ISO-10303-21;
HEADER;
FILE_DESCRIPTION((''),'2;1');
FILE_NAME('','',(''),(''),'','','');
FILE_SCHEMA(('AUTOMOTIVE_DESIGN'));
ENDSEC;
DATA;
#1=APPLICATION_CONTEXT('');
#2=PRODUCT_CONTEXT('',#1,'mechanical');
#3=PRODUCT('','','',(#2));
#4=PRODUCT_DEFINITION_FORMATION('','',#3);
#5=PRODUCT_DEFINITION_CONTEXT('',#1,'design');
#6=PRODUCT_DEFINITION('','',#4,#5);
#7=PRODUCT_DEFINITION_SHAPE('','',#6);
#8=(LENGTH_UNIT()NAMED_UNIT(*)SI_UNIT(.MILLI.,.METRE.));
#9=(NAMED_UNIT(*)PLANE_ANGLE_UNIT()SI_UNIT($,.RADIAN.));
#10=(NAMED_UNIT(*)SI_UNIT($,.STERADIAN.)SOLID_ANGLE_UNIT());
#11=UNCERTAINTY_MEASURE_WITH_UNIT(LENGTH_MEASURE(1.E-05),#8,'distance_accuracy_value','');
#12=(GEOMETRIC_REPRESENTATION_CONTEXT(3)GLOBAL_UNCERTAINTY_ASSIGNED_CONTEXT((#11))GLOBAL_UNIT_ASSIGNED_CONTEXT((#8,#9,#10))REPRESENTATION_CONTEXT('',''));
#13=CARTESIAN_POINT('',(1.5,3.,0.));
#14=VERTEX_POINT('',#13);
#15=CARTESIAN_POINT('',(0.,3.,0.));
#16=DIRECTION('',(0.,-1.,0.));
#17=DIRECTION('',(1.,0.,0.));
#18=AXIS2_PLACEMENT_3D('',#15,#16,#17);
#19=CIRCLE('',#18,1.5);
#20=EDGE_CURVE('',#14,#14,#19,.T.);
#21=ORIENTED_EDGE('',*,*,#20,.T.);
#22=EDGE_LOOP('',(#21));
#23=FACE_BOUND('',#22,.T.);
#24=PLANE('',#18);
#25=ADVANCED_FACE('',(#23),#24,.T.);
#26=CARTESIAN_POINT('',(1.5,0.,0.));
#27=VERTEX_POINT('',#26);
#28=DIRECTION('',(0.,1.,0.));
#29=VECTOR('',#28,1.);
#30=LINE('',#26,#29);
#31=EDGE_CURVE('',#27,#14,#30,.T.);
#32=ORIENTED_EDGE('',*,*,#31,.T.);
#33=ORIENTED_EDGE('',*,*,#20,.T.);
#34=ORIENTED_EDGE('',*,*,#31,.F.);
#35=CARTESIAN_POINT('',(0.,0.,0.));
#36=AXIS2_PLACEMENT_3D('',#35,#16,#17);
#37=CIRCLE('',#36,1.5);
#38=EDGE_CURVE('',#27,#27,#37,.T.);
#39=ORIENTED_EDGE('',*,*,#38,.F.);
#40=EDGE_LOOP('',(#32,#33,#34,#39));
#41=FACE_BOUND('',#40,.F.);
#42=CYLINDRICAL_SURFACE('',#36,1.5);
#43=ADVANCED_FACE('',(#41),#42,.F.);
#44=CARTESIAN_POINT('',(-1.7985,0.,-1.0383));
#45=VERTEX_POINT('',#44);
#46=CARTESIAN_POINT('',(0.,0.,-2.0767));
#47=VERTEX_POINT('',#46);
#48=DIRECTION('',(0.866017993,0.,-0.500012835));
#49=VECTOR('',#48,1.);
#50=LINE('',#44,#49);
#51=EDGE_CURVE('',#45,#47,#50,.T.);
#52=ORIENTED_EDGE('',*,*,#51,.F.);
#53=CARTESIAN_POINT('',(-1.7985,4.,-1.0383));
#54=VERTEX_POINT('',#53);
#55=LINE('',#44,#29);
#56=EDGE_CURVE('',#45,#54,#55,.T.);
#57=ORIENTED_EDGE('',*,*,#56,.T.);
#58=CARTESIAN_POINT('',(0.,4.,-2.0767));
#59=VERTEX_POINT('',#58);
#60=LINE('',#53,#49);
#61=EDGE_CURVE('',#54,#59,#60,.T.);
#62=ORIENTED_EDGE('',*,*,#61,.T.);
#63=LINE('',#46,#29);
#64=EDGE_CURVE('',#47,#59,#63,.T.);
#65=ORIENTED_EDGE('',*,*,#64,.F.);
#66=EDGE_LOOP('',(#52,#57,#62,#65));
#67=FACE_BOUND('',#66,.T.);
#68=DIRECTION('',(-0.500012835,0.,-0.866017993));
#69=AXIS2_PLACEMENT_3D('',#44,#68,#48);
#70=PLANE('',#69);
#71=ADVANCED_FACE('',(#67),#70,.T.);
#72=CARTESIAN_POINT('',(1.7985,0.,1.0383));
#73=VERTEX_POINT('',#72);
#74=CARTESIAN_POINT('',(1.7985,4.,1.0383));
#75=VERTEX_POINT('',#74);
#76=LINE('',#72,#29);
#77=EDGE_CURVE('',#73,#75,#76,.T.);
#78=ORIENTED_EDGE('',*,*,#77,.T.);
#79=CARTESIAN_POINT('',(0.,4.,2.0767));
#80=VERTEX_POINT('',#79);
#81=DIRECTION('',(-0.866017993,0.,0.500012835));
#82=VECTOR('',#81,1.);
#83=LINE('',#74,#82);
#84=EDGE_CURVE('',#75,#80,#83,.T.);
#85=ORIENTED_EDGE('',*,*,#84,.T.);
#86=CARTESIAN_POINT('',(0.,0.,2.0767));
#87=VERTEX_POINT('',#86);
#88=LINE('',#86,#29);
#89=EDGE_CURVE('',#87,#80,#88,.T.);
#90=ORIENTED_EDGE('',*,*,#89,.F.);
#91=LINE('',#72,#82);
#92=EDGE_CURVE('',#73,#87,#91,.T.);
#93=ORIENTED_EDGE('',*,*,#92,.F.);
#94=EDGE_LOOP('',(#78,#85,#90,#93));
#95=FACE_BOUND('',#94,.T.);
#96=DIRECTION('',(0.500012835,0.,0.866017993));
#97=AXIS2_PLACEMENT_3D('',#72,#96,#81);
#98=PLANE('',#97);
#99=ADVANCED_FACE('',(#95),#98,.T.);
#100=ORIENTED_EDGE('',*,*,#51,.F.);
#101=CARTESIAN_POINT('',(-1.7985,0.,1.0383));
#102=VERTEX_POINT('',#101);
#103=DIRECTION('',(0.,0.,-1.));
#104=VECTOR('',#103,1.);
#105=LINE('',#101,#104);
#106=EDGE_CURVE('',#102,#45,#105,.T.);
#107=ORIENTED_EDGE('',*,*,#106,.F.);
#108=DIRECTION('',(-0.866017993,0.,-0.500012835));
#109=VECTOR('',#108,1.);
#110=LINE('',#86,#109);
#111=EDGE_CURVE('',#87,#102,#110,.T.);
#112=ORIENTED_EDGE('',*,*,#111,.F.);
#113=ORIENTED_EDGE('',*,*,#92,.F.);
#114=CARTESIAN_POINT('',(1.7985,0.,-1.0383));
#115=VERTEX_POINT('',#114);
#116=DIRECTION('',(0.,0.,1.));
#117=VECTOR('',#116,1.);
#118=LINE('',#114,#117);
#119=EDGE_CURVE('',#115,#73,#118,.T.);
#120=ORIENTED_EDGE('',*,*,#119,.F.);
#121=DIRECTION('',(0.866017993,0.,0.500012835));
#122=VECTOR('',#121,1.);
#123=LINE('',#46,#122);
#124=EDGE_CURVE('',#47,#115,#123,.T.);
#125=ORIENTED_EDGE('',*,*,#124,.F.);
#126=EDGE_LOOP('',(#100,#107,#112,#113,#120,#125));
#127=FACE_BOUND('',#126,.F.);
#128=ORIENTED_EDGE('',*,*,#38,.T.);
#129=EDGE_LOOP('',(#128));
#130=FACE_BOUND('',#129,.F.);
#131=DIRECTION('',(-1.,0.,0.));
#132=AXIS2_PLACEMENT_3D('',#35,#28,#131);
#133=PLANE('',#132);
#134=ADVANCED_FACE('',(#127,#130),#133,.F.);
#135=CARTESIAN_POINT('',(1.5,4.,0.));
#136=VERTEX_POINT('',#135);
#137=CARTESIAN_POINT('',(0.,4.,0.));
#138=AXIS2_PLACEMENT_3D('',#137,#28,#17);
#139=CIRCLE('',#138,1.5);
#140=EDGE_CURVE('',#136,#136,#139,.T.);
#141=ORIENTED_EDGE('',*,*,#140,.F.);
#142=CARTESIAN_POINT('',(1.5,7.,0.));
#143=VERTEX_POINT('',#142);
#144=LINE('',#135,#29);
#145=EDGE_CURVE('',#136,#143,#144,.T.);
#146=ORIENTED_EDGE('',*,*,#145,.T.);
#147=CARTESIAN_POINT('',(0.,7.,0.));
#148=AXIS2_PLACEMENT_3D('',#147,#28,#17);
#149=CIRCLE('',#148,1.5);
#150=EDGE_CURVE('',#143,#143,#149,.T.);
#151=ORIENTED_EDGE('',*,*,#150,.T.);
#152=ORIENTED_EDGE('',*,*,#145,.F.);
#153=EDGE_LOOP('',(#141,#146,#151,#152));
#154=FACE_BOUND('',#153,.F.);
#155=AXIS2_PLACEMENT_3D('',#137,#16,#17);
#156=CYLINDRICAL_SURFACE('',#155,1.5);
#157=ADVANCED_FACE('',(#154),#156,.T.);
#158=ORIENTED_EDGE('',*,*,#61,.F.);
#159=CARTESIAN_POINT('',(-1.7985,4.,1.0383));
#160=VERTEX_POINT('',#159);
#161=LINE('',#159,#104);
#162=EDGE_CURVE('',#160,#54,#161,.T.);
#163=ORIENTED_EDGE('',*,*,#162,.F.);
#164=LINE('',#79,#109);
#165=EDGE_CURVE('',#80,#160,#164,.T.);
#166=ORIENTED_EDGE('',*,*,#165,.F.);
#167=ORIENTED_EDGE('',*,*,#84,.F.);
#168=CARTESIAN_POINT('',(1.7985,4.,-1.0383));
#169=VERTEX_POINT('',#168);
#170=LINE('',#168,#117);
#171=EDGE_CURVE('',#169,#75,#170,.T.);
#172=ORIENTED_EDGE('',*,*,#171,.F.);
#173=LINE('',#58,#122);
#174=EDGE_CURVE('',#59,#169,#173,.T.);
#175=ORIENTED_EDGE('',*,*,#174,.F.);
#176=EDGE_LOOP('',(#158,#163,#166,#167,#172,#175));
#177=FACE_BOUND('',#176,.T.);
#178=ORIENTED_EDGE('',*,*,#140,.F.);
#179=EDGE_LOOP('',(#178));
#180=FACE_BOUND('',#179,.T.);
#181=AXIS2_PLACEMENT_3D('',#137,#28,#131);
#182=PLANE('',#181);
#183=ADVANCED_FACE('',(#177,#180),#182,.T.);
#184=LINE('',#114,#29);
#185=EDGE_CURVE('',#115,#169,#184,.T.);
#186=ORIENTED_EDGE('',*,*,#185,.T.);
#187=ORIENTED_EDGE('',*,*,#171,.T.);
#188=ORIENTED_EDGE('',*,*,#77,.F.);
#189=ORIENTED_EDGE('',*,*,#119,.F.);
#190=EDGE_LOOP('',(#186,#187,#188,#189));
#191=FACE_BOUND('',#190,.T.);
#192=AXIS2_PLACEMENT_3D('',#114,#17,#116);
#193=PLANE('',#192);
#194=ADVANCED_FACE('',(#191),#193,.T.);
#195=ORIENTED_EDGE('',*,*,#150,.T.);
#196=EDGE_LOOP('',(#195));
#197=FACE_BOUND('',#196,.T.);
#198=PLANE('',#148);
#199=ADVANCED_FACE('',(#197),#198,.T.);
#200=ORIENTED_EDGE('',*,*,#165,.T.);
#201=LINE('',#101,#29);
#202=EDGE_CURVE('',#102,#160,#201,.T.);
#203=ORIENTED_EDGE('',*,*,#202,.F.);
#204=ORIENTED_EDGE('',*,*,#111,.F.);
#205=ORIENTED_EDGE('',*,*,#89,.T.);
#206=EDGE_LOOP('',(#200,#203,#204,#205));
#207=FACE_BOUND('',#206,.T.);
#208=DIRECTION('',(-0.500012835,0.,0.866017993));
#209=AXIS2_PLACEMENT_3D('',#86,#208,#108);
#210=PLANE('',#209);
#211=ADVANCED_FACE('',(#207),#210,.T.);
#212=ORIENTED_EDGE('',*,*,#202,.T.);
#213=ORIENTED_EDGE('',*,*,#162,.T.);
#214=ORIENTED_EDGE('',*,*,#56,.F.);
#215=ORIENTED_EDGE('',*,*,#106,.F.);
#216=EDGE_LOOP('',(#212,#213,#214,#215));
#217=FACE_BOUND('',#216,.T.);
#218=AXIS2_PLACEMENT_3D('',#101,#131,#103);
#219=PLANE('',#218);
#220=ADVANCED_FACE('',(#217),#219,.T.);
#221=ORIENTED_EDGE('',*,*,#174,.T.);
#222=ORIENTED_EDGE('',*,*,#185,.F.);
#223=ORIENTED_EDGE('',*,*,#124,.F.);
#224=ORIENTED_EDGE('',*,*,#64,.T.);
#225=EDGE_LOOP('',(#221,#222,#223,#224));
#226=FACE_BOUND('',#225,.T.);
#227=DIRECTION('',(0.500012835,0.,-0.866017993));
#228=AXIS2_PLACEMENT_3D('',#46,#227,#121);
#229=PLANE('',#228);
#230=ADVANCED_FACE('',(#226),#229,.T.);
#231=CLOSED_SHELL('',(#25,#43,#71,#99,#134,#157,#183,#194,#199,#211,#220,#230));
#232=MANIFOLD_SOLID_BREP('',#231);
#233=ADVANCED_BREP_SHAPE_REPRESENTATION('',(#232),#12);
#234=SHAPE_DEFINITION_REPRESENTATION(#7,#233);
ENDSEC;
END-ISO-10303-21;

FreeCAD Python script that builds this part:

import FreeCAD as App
import Part
import Sketcher
from FreeCAD import Vector
Q = App.Units.Quantity


def add_polygon(sketch, points):
    """Adds a closed chain of lines whose ends are joined by coincident constraints."""
    first, n = sketch.GeometryCount, len(points)
    for a, b in zip(points, points[1:] + points[:1]):
        sketch.addGeometry(Part.LineSegment(App.Vector(*a, 0), App.Vector(*b, 0)), False)
    for i in range(n):
        sketch.addConstraint(Sketcher.Constraint("Coincident", first + i, 2, first + (i + 1) % n, 1))

doc = App.newDocument("Part")
params = doc.addObject("Spreadsheet::Sheet", "Params")
for row, (alias, value) in enumerate([
    ("pad1_length", "4 mm"),
    ("sketch2_diameter", "3 mm"),
    ("pad2_length", "3 mm"),
    ("sketch3_diameter", "3 mm"),
    ("pocket1_length", "3 mm"),
], start=1):
    params.set(f"A{row}", alias)
    params.set(f"B{row}", "=" + value)
    params.setAlias(f"B{row}", alias)

body = doc.addObject("PartDesign::Body", "Body")

# Sketch on XZ plane
sketch1 = doc.addObject("Sketcher::SketchObject", "Sketch")
body.addObject(sketch1)
sketch1.AttachmentSupport = (doc.XZ_Plane, [""])
sketch1.MapMode = "FlatFace"
add_polygon(sketch1, [(0, -2.1), (-1.8, -1), (-1.8, 1), (0, 2.1), (1.8, 1), (1.8, -1)])  # lines 0-5
sketch1.addConstraint([
    Sketcher.Constraint("Vertical", 1),
    Sketcher.Constraint("Vertical", 4),
    Sketcher.Constraint("Symmetric", 0, 2, 3, 2, -1, 1),
    Sketcher.Constraint("Symmetric", 2, 2, 5, 2, -1, 1),
    Sketcher.Constraint("PointOnObject", 2, 2, -2),
    Sketcher.Constraint("Parallel", 2, 5),
    Sketcher.Constraint("Horizontal", 1, 2, 3, 2),
    Sketcher.Constraint("Angle", 0, Q("149.9992 deg")),
    Sketcher.Constraint("DistanceY", 1, 1, 1, 2, 2.0766),
    Sketcher.Constraint("DistanceY", 0, 2, 2, 2, 3.115),
])
pad1 = doc.addObject("PartDesign::Pad", "Pad")
body.addObject(pad1)
pad1.Profile = sketch1
pad1.setExpression("Length", "Params.pad1_length")
pad1.Reversed = True

# Sketch on XZ plane
sketch2 = doc.addObject("Sketcher::SketchObject", "Sketch001")
body.addObject(sketch2)
sketch2.AttachmentSupport = (doc.XZ_Plane, [""])
sketch2.MapMode = "FlatFace"
sketch2.AttachmentOffset = App.Placement(Vector(0, 0, -4), App.Rotation())
sketch2.addGeometry(Part.Circle(Vector(0, 0, 0), Vector(0, 0, 1), 1.5), False)
sketch2.addConstraint([
    Sketcher.Constraint("Coincident", 0, 3, -1, 1),
    Sketcher.Constraint("Diameter", 0, 3.0),
])
sketch2.setExpression("Constraints[1]", "Params.sketch2_diameter")
pad2 = doc.addObject("PartDesign::Pad", "Pad001")
body.addObject(pad2)
pad2.Profile = sketch2
pad2.setExpression("Length", "Params.pad2_length")
pad2.Reversed = True

# Sketch on XZ plane
sketch3 = doc.addObject("Sketcher::SketchObject", "Sketch002")
body.addObject(sketch3)
sketch3.AttachmentSupport = (doc.XZ_Plane, [""])
sketch3.MapMode = "FlatFace"
sketch3.addGeometry(Part.Circle(Vector(0, 0, 0), Vector(0, 0, 1), 1.5), False)
sketch3.addConstraint([
    Sketcher.Constraint("Coincident", 0, 3, -1, 1),
    Sketcher.Constraint("Diameter", 0, 3.0),
])
sketch3.setExpression("Constraints[1]", "Params.sketch3_diameter")
pocket1 = doc.addObject("PartDesign::Pocket", "Pocket")
body.addObject(pocket1)
pocket1.Profile = sketch3
pocket1.setExpression("Length", "Params.pocket1_length")

doc.recompute()
